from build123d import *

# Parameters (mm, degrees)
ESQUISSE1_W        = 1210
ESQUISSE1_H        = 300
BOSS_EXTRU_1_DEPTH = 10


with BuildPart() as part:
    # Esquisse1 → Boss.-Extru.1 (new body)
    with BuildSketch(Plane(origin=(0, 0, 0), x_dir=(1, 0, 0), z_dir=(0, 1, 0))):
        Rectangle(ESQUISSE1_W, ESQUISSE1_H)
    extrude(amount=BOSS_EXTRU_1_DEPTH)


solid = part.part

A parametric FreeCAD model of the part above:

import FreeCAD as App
import Part
import Sketcher

V = App.Vector
Q = App.Units.Quantity

doc = App.newDocument("Part")
body = doc.addObject("PartDesign::Body", "Body")

sketch1 = body.newObject("Sketcher::SketchObject", "Sketch")
sketch1.AttachmentSupport = (doc.getObject("XZ_Plane"), [""])
sketch1.MapMode = "FlatFace"
sketch1.addGeometry([
    Part.LineSegment(V(-605, -150, 0), V(-605, 150, 0)),
    Part.LineSegment(V(-605, 150, 0), V(605, 150, 0)),
    Part.LineSegment(V(605, 150, 0), V(605, -150, 0)),
    Part.LineSegment(V(605, -150, 0), V(-605, -150, 0)),
], False)
sketch1.addConstraint([
    Sketcher.Constraint("Coincident", 0, 2, 1, 1),
    Sketcher.Constraint("Coincident", 1, 2, 2, 1),
    Sketcher.Constraint("Coincident", 2, 2, 3, 1),
    Sketcher.Constraint("Coincident", 3, 2, 0, 1),
    Sketcher.Constraint("Vertical", 0),
    Sketcher.Constraint("Horizontal", 1),
    Sketcher.Constraint("Vertical", 2),
    Sketcher.Constraint("Horizontal", 3),
    Sketcher.Constraint("Symmetric", 0, 2, 2, 2, -1, 1),
    Sketcher.Constraint("DistanceX", 1, 1, 1, 2, Q("1210 mm")),
    Sketcher.Constraint("DistanceY", 0, 1, 0, 2, Q("300 mm")),
])
pad1 = body.newObject("PartDesign::Pad", "Pad")
pad1.Profile = sketch1
pad1.Length = 10
pad1.Reversed = True

doc.recompute()
